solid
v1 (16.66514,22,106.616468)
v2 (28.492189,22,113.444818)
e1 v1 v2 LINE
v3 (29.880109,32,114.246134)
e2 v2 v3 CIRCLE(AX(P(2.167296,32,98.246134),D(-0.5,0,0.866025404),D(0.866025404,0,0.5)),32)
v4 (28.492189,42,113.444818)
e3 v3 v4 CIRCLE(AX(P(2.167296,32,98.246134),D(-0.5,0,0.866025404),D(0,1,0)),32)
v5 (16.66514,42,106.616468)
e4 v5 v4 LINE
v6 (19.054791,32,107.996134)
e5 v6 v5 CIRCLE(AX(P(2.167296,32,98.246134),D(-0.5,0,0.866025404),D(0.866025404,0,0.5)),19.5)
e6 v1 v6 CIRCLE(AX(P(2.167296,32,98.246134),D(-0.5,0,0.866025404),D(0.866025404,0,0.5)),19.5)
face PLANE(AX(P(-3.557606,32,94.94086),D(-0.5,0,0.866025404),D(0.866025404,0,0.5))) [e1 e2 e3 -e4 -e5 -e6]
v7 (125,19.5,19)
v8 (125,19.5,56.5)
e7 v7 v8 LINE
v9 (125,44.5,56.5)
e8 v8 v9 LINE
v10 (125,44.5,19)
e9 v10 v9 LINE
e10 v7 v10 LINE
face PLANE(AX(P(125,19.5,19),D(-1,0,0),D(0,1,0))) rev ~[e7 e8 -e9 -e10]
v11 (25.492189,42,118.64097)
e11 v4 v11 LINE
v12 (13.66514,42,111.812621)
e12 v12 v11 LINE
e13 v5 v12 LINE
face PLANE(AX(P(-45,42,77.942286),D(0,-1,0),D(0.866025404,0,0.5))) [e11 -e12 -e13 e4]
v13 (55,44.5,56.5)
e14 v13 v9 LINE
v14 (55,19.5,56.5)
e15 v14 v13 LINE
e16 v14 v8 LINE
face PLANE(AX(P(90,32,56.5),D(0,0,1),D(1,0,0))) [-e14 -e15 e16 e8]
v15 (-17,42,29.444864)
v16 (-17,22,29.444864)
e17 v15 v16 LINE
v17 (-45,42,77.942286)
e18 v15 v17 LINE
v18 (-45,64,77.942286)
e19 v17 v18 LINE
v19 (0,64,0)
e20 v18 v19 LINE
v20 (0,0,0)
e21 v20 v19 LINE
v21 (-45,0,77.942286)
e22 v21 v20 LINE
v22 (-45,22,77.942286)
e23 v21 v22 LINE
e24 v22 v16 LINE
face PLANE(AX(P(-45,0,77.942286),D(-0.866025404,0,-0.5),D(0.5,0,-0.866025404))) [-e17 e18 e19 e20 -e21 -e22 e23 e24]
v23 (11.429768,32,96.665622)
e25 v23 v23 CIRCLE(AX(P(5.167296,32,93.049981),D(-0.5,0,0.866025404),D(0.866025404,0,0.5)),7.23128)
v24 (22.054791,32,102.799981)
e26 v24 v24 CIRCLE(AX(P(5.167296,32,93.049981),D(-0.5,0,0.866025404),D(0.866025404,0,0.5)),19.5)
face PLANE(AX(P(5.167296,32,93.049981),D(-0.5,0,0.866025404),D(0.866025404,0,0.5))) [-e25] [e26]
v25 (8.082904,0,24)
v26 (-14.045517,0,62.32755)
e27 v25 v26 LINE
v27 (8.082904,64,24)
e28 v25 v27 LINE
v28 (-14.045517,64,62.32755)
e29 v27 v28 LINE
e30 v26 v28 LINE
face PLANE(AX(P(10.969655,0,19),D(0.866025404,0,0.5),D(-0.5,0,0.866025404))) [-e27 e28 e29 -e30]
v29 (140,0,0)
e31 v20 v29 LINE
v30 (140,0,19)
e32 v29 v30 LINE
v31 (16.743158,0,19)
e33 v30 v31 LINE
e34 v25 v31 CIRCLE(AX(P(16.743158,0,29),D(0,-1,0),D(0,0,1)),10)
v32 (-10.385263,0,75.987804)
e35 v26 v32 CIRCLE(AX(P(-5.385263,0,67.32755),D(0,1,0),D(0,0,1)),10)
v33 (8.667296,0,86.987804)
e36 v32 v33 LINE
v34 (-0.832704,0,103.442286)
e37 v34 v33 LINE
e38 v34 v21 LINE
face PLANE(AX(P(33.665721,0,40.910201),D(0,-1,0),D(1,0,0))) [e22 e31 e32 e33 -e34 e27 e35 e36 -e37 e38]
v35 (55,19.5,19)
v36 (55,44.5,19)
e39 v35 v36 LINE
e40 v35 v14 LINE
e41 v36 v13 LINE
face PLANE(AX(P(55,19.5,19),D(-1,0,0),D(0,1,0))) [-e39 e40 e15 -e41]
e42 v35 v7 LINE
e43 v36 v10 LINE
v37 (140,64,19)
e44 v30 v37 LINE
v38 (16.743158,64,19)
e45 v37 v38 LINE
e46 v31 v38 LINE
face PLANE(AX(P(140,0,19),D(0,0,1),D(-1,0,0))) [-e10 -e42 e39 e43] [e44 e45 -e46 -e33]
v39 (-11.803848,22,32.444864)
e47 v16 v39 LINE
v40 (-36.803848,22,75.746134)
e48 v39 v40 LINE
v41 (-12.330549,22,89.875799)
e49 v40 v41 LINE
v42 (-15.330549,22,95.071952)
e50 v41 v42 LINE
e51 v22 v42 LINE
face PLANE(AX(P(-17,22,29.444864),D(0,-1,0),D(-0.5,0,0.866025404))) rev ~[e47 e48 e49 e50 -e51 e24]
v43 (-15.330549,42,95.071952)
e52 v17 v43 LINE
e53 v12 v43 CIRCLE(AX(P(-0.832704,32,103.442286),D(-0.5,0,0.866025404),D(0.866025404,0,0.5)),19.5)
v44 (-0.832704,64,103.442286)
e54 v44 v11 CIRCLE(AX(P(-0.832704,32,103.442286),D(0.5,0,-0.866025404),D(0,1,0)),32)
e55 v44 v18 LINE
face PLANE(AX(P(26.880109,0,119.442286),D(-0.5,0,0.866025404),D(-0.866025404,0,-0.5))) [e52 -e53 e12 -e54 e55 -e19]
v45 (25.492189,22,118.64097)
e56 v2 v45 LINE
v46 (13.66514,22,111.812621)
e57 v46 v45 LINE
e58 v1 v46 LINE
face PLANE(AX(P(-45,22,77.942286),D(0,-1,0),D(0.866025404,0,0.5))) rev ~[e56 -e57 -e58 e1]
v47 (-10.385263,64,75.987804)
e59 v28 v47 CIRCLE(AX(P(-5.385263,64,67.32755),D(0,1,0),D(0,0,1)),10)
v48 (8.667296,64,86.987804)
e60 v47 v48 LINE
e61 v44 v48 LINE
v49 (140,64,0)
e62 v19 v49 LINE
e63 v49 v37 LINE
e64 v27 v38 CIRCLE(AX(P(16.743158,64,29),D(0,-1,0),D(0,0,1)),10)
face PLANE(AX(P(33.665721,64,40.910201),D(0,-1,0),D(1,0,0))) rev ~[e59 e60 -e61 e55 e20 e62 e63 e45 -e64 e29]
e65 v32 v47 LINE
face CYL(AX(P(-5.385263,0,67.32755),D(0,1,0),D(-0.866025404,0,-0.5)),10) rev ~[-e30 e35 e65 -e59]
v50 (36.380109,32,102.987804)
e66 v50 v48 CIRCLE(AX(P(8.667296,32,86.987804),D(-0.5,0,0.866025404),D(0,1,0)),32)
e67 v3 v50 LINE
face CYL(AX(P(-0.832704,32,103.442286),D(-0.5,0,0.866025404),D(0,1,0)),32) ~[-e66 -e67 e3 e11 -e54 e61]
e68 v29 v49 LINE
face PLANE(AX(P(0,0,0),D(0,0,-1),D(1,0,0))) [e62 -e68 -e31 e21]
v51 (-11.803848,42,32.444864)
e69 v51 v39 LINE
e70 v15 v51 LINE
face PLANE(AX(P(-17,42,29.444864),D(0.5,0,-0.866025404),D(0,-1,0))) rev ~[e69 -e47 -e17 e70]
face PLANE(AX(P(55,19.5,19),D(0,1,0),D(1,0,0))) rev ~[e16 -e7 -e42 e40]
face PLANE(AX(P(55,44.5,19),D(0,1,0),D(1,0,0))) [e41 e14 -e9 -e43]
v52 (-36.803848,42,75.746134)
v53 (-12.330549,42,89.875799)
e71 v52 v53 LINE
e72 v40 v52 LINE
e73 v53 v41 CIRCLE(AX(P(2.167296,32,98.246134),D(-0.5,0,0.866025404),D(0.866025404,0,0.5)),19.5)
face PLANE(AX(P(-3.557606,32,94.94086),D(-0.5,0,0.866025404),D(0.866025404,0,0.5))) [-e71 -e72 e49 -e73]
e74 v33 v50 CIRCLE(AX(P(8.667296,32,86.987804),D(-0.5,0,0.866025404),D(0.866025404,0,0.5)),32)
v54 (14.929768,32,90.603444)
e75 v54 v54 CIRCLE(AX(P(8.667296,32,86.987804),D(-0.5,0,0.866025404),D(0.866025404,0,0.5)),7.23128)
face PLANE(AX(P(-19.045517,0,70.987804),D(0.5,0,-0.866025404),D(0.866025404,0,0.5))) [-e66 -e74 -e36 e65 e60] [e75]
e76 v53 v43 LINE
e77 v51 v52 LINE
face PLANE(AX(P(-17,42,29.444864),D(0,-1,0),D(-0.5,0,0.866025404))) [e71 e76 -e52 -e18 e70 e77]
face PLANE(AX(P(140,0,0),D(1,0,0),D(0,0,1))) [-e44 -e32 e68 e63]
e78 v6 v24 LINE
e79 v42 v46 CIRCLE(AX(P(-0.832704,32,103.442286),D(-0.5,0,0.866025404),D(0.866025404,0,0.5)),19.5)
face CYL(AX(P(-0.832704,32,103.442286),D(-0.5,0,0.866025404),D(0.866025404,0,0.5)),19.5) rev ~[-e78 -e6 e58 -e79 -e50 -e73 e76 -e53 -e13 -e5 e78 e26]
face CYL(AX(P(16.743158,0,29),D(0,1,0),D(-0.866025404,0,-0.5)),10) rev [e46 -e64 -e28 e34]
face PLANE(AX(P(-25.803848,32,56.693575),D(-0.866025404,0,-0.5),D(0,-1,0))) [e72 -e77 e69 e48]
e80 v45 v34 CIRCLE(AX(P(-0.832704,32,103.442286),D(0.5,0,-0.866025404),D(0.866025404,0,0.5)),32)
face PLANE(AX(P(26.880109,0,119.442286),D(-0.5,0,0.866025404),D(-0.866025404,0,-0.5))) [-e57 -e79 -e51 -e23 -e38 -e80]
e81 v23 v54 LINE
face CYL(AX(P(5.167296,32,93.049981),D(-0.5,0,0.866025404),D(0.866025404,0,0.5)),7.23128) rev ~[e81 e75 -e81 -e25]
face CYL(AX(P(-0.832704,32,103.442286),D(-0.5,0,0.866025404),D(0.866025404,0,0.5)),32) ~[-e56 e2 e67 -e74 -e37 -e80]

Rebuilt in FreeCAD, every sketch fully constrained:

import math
import FreeCAD as App
import Part
import Sketcher
Q = App.Units.Quantity


def edges_at(feature, points):
    """Names of the edges that pass closest to the given points."""
    edges = feature.Shape.Edges
    near = lambda p: min(range(len(edges)), key=lambda i: edges[i].distToShape(Part.Vertex(*p))[0])
    return sorted({f"Edge{near(p) + 1}" for p in points})


def add_polygon(sketch, points):
    """Adds a closed chain of lines whose ends are joined by coincident constraints."""
    first, n = sketch.GeometryCount, len(points)
    for a, b in zip(points, points[1:] + points[:1]):
        sketch.addGeometry(Part.LineSegment(App.Vector(*a, 0), App.Vector(*b, 0)), False)
    for i in range(n):
        sketch.addConstraint(Sketcher.Constraint("Coincident", first + i, 2, first + (i + 1) % n, 1))

doc = App.newDocument("Part")
params = doc.addObject("Spreadsheet::Sheet", "Params")
for row, (alias, value) in enumerate([
    ("sketch1_width", "140 mm"),
    ("sketch1_height", "19 mm"),
    ("sketch1_length", "90 mm"),
    ("sketch1_length2", "64 mm"),
    ("sketch1_length3", "19 mm"),
    ("pad1_length", "64 mm"),
    ("sketch2_radius", "32 mm"),
    ("pocket1_length", "25 mm"),
    ("sketch3_diameter", "39 mm"),
    ("pocket2_length", "12 mm"),
    ("pocket3_length", "7 mm"),
    ("sketch5_width", "20 mm"),
    ("sketch5_height", "56 mm"),
    ("pocket4_length", "6 mm"),
    ("sketch6_height", "20 mm"),
    ("pocket5_length", "6 mm"),
    ("fillet_radius", "10 mm"),
    ("fillet2_radius", "10 mm"),
    ("sketch7_width", "70 mm"),
    ("sketch7_height", "25 mm"),
    ("pad2_length", "37.5 mm"),
], start=1):
    params.set(f"A{row}", alias)
    params.set(f"B{row}", "=" + value)
    params.setAlias(f"B{row}", alias)

body = doc.addObject("PartDesign::Body", "Body")

# Sketch on XZ plane
sketch1 = doc.addObject("Sketcher::SketchObject", "Sketch")
body.addObject(sketch1)
sketch1.AttachmentSupport = (doc.XZ_Plane, [""])
sketch1.MapMode = "FlatFace"
add_polygon(sketch1, [(-45, 77.942286), (0, 0), (140, 0), (140, 19), (10.969655, 19), (-19.045517, 70.987804), (36.380109, 102.987804), (26.880109, 119.442286)])  # lines 0-7
sketch1.addConstraint(Sketcher.Constraint("Horizontal", 1))
sketch1.addConstraint(Sketcher.Constraint("Vertical", 2))
sketch1.addConstraint(Sketcher.Constraint("Horizontal", 3))
sketch1.addConstraint(Sketcher.Constraint("Coincident", 0, 2, -1, 1))
sketch1.addConstraint(Sketcher.Constraint("Parallel", 0, 4))
sketch1.addConstraint(Sketcher.Constraint("Perpendicular", 4, 5))
sketch1.addConstraint(Sketcher.Constraint("Perpendicular", 5, 6))
sketch1.addConstraint(Sketcher.Constraint("Perpendicular", 6, 7))
sketch1.addConstraint(Sketcher.Constraint("DistanceX", 1, 1, 1, 2, 140.0))
sketch1.addConstraint(Sketcher.Constraint("DistanceY", 2, 1, 2, 2, 19.0))
sketch1.addConstraint(Sketcher.Constraint("Angle", 0, Q("-60 deg")))
sketch1.addConstraint(Sketcher.Constraint("Distance", 0, 90.0))
sketch1.addConstraint(Sketcher.Constraint("Distance", 5, 64.0))
sketch1.addConstraint(Sketcher.Constraint("Distance", 6, 19.0))
sketch1.addConstraint(Sketcher.Constraint("Distance", 7, 83.0))
sketch1.setExpression("Constraints[16]", "Params.sketch1_width")
sketch1.setExpression("Constraints[17]", "Params.sketch1_height")
sketch1.setExpression("Constraints[19]", "Params.sketch1_length")
sketch1.setExpression("Constraints[20]", "Params.sketch1_length2")
sketch1.setExpression("Constraints[21]", "Params.sketch1_length3")
pad1 = doc.addObject("PartDesign::Pad", "Pad")
body.addObject(pad1)
pad1.Profile = sketch1
pad1.setExpression("Length", "Params.pad1_length")
pad1.Reversed = True

# Sketch on an angled plane
sketch2 = doc.addObject("Sketcher::SketchObject", "Sketch001")
body.addObject(sketch2)
sketch2.Placement = App.Placement(App.Vector(-45, 0, 77.942286), App.Rotation(App.Vector(0.866025404, 0, 0.5), App.Vector(0, 1, 0), App.Vector(-0.5, 0, 0.866025404), "ZXY"))
sketch2.addGeometry(Part.ArcOfCircle(Part.Circle(App.Vector(51, 32, 0), App.Vector(0, 0, 1), 32), math.radians(0), math.radians(90)), False)
sketch2.addGeometry(Part.LineSegment(App.Vector(83, 32, 0), App.Vector(83, 64, 0)), False)
sketch2.addGeometry(Part.LineSegment(App.Vector(83, 64, 0), App.Vector(51, 64, 0)), False)
sketch2.addGeometry(Part.LineSegment(App.Vector(83, 0, 0), App.Vector(83, 32, 0)), False)
sketch2.addGeometry(Part.ArcOfCircle(Part.Circle(App.Vector(51, 32, 0), App.Vector(0, 0, 1), 32), math.radians(-90), math.radians(0)), False)
sketch2.addGeometry(Part.LineSegment(App.Vector(51, 0, 0), App.Vector(83, 0, 0)), False)
sketch2.addConstraint(Sketcher.Constraint("Tangent", 0, 1, 1, 1))
sketch2.addConstraint(Sketcher.Constraint("Coincident", 1, 2, 2, 1))
sketch2.addConstraint(Sketcher.Constraint("Tangent", 2, 2, 0, 2))
sketch2.addConstraint(Sketcher.Constraint("Tangent", 3, 2, 4, 2))
sketch2.addConstraint(Sketcher.Constraint("Tangent", 4, 1, 5, 1))
sketch2.addConstraint(Sketcher.Constraint("Coincident", 5, 2, 3, 1))
sketch2.addConstraint(Sketcher.Constraint("Vertical", 1))
sketch2.addConstraint(Sketcher.Constraint("Horizontal", 2))
sketch2.addConstraint(Sketcher.Constraint("Vertical", 3))
sketch2.addConstraint(Sketcher.Constraint("Horizontal", 5))
sketch2.addConstraint(Sketcher.Constraint("Coincident", 4, 3, 0, 3))
sketch2.addConstraint(Sketcher.Constraint("Equal", 0, 4))
sketch2.addConstraint(Sketcher.Constraint("PointOnObject", 4, 1, -1))
sketch2.addConstraint(Sketcher.Constraint("Radius", 0, 32.0))
sketch2.addConstraint(Sketcher.Constraint("DistanceX", -1, 1, 0, 3, 51.0))
sketch2.setExpression("Constraints[13]", "Params.sketch2_radius")
pocket1 = doc.addObject("PartDesign::Pocket", "Pocket")
body.addObject(pocket1)
pocket1.Profile = sketch2
pocket1.setExpression("Length", "Params.pocket1_length")

# Sketch on an angled plane
sketch3 = doc.addObject("Sketcher::SketchObject", "Sketch002")
body.addObject(sketch3)
sketch3.Placement = App.Placement(App.Vector(-45, 0, 77.942286), App.Rotation(App.Vector(0.866025404, 0, 0.5), App.Vector(0, 1, 0), App.Vector(-0.5, 0, 0.866025404), "ZXY"))
sketch3.addGeometry(Part.Circle(App.Vector(51, 32, 0), App.Vector(0, 0, 1), 19.5), False)
sketch3.addConstraint(Sketcher.Constraint("Diameter", 0, 39.0))
sketch3.addConstraint(Sketcher.Constraint("DistanceX", -1, 1, 0, 3, 51.0))
sketch3.addConstraint(Sketcher.Constraint("DistanceY", -1, 1, 0, 3, 32.0))
sketch3.setExpression("Constraints[0]", "Params.sketch3_diameter")
pocket2 = doc.addObject("PartDesign::Pocket", "Pocket001")
body.addObject(pocket2)
pocket2.Profile = sketch3
pocket2.setExpression("Length", "Params.pocket2_length")

# Sketch on an angled plane
sketch4 = doc.addObject("Sketcher::SketchObject", "Sketch003")
body.addObject(sketch4)
sketch4.Placement = App.Placement(App.Vector(-39, 0, 67.549981), App.Rotation(App.Vector(0.866025404, 0, 0.5), App.Vector(0, 1, 0), App.Vector(-0.5, 0, 0.866025404), "ZXY"))
sketch4.addGeometry(Part.Circle(App.Vector(51, 32, 0), App.Vector(0, 0, 1), 7.23128), False)
sketch4.addConstraint(Sketcher.Constraint("DistanceX", -1, 1, 0, 3, 51.0))
sketch4.addConstraint(Sketcher.Constraint("DistanceY", -1, 1, 0, 3, 32.0))
sketch4.addConstraint(Sketcher.Constraint("Diameter", 0, 14.46256))
pocket3 = doc.addObject("PartDesign::Pocket", "Pocket002")
body.addObject(pocket3)
pocket3.Profile = sketch4
pocket3.setExpression("Length", "Params.pocket3_length")

# Sketch on an angled plane
sketch5 = doc.addObject("Sketcher::SketchObject", "Sketch004")
body.addObject(sketch5)
sketch5.Placement = App.Placement(App.Vector(0, 0, 0), App.Rotation(App.Vector(0, -1, 0), App.Vector(-0.5, 0, 0.866025404), App.Vector(-0.866025404, 0, -0.5), "ZXY"))
add_polygon(sketch5, [(-42, 90), (-42, 34), (-22, 34), (-22, 90)])  # lines 0-3
sketch5.addConstraint(Sketcher.Constraint("Vertical", 0))
sketch5.addConstraint(Sketcher.Constraint("Horizontal", 1))
sketch5.addConstraint(Sketcher.Constraint("Vertical", 2))
sketch5.addConstraint(Sketcher.Constraint("Horizontal", 3))
sketch5.addConstraint(Sketcher.Constraint("DistanceX", 1, 1, 1, 2, 20.0))
sketch5.addConstraint(Sketcher.Constraint("DistanceY", 0, 2, 0, 1, 56.0))
sketch5.addConstraint(Sketcher.Constraint("DistanceX", 0, 2, -1, 1, 42.0))
sketch5.addConstraint(Sketcher.Constraint("DistanceY", -1, 1, 0, 2, 34.0))
sketch5.setExpression("Constraints[8]", "Params.sketch5_width")
sketch5.setExpression("Constraints[9]", "Params.sketch5_height")
pocket4 = doc.addObject("PartDesign::Pocket", "Pocket003")
body.addObject(pocket4)
pocket4.Profile = sketch5
pocket4.setExpression("Length", "Params.pocket4_length")

# Sketch on an angled plane
sketch6 = doc.addObject("Sketcher::SketchObject", "Sketch005")
body.addObject(sketch6)
sketch6.Placement = App.Placement(App.Vector(-45, 0, 77.942286), App.Rotation(App.Vector(0.866025404, 0, 0.5), App.Vector(0, 1, 0), App.Vector(-0.5, 0, 0.866025404), "ZXY"))
add_polygon(sketch6, [(0, 42), (0, 22), (88.778906, 22), (88.778906, 42)])  # lines 0-3
sketch6.addConstraint(Sketcher.Constraint("Vertical", 0))
sketch6.addConstraint(Sketcher.Constraint("Horizontal", 1))
sketch6.addConstraint(Sketcher.Constraint("Vertical", 2))
sketch6.addConstraint(Sketcher.Constraint("Horizontal", 3))
sketch6.addConstraint(Sketcher.Constraint("PointOnObject", 0, 2, -2))
sketch6.addConstraint(Sketcher.Constraint("DistanceY", 0, 2, 0, 1, 20.0))
sketch6.addConstraint(Sketcher.Constraint("DistanceY", -1, 1, 0, 2, 22.0))
sketch6.addConstraint(Sketcher.Constraint("DistanceX", 1, 1, 1, 2, 88.778906))
sketch6.setExpression("Constraints[9]", "Params.sketch6_height")
pocket5 = doc.addObject("PartDesign::Pocket", "Pocket004")
body.addObject(pocket5)
pocket5.Profile = sketch6
pocket5.setExpression("Length", "Params.pocket5_length")
doc.recompute()

fillet = doc.addObject("PartDesign::Fillet", "Fillet")
body.addObject(fillet)
fillet.Base = (pocket5, edges_at(pocket5, [(-19.046, 32, 70.988)]))
fillet.setExpression("Radius", "Params.fillet_radius")
doc.recompute()

fillet2 = doc.addObject("PartDesign::Fillet", "Fillet001")
body.addObject(fillet2)
fillet2.Base = (fillet, edges_at(fillet, [(10.97, 32, 19)]))
fillet2.setExpression("Radius", "Params.fillet2_radius")

# Sketch on XY plane
sketch7 = doc.addObject("Sketcher::SketchObject", "Sketch006")
body.addObject(sketch7)
sketch7.AttachmentSupport = (doc.XY_Plane, [""])
sketch7.MapMode = "FlatFace"
sketch7.AttachmentOffset = App.Placement(App.Vector(0, 0, 19), App.Rotation())
add_polygon(sketch7, [(55, 44.5), (55, 19.5), (125, 19.5), (125, 44.5)])  # lines 0-3
sketch7.addConstraint(Sketcher.Constraint("Vertical", 0))
sketch7.addConstraint(Sketcher.Constraint("Horizontal", 1))
sketch7.addConstraint(Sketcher.Constraint("Vertical", 2))
sketch7.addConstraint(Sketcher.Constraint("Horizontal", 3))
sketch7.addConstraint(Sketcher.Constraint("DistanceX", 1, 1, 1, 2, 70.0))
sketch7.addConstraint(Sketcher.Constraint("DistanceY", 0, 2, 0, 1, 25.0))
sketch7.addConstraint(Sketcher.Constraint("DistanceX", -1, 1, 0, 2, 55.0))
sketch7.addConstraint(Sketcher.Constraint("DistanceY", -1, 1, 0, 2, 19.5))
sketch7.setExpression("Constraints[8]", "Params.sketch7_width")
sketch7.setExpression("Constraints[9]", "Params.sketch7_height")
pad2 = doc.addObject("PartDesign::Pad", "Pad001")
body.addObject(pad2)
pad2.Profile = sketch7
pad2.setExpression("Length", "Params.pad2_length")

doc.recompute()
